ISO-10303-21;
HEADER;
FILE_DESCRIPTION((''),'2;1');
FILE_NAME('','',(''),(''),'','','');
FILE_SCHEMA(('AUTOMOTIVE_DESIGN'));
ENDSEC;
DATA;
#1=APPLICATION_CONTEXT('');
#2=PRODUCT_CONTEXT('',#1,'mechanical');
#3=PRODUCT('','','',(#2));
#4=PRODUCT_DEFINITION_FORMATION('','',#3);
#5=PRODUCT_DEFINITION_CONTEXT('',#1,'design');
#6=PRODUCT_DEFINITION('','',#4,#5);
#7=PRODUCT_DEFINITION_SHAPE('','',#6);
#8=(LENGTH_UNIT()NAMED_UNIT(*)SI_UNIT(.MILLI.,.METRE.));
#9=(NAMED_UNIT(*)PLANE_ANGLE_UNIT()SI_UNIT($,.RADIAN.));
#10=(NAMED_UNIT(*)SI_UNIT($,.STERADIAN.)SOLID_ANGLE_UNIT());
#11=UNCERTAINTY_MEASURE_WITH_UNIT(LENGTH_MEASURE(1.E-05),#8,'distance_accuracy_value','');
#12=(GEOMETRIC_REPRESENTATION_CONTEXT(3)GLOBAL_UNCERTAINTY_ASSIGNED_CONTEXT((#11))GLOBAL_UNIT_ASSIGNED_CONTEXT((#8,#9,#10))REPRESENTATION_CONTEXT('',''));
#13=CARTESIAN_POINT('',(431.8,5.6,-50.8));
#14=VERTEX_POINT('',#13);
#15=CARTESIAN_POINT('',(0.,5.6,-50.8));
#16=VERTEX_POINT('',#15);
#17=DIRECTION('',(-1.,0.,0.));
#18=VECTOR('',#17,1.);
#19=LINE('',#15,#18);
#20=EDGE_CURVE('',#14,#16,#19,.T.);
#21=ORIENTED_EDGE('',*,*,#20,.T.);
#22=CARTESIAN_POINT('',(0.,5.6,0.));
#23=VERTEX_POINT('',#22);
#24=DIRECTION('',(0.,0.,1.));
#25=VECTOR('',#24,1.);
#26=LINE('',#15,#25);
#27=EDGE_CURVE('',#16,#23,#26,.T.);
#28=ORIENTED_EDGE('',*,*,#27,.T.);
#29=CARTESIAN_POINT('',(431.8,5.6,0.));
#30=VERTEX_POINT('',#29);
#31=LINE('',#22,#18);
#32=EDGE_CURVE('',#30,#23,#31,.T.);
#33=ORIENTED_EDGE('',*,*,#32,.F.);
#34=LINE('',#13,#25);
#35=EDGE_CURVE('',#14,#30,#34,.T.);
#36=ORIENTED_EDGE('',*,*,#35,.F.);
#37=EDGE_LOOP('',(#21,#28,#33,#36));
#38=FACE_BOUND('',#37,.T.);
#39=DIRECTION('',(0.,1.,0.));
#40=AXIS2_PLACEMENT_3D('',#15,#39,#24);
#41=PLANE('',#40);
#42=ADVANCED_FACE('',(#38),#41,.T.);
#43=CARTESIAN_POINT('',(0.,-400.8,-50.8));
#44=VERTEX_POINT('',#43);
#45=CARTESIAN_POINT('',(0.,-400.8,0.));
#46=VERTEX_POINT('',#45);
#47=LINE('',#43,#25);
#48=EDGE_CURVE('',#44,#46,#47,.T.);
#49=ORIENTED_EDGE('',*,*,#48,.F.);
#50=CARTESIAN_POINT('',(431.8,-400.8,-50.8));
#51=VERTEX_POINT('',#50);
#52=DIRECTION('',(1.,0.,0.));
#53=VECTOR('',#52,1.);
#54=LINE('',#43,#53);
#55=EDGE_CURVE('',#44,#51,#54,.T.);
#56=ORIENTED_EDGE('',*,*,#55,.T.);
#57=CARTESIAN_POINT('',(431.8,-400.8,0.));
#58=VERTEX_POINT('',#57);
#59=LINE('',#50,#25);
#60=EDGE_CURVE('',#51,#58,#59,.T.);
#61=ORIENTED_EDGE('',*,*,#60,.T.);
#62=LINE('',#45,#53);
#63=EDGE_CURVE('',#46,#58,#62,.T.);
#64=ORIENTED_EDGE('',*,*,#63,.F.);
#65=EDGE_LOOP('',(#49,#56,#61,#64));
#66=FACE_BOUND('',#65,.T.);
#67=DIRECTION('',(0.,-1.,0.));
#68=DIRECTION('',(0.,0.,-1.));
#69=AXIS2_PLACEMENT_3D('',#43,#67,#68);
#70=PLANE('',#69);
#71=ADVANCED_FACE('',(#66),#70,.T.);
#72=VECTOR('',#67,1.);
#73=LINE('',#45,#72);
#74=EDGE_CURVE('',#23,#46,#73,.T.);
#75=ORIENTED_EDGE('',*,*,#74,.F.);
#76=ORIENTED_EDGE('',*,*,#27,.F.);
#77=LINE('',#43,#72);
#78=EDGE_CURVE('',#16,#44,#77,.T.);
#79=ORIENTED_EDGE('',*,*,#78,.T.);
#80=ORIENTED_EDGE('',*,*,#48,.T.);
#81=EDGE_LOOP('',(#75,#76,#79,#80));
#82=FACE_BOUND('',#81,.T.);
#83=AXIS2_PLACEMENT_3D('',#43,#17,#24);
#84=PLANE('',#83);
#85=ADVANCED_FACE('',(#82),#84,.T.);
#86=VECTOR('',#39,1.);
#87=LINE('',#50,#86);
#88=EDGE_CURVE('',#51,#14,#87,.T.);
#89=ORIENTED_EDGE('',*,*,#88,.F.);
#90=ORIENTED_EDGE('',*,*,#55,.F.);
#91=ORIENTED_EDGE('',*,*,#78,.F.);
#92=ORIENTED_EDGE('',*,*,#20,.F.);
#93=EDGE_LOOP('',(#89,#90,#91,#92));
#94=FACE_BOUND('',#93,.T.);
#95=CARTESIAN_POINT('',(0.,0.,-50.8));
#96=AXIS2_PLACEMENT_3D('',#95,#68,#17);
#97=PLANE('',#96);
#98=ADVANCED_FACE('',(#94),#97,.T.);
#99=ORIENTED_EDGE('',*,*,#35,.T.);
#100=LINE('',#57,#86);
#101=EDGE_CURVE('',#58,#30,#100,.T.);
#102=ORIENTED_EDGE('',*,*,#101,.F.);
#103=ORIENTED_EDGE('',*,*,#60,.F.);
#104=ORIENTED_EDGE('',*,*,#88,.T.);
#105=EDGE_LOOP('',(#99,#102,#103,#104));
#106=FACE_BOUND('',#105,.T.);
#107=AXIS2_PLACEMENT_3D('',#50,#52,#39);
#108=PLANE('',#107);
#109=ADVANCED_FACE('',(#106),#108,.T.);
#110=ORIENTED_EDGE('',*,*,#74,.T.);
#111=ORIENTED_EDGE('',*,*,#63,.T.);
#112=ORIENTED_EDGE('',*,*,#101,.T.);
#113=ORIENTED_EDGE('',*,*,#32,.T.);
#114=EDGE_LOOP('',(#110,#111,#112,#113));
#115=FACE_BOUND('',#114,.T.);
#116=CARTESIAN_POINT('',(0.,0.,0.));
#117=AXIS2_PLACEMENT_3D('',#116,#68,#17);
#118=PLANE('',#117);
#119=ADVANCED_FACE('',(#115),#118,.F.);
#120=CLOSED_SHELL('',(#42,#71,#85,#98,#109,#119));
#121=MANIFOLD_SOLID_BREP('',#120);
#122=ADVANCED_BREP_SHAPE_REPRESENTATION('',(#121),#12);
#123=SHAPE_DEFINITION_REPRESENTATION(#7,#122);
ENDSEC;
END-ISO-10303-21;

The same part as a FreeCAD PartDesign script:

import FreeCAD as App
import Part
import Sketcher

V = App.Vector
Q = App.Units.Quantity

doc = App.newDocument("Part")
body = doc.addObject("PartDesign::Body", "Body")

sketch1 = body.newObject("Sketcher::SketchObject", "Sketch")
sketch1.AttachmentSupport = (doc.getObject("XY_Plane"), [""])
sketch1.MapMode = "FlatFace"
sketch1.addGeometry(Part.LineSegment(V(0, 5.6, 0), V(0, -400.8, 0)), False)
sketch1.addGeometry(Part.LineSegment(V(0, -400.8, 0), V(431.8, -400.8, 0)), False)
sketch1.addGeometry(Part.LineSegment(V(431.8, -400.8, 0), V(431.8, 5.6, 0)), False)
sketch1.addGeometry(Part.LineSegment(V(431.8, 5.6, 0), V(0, 5.6, 0)), False)
sketch1.addConstraint(Sketcher.Constraint("Coincident", 0, 2, 1, 1))
sketch1.addConstraint(Sketcher.Constraint("Coincident", 1, 2, 2, 1))
sketch1.addConstraint(Sketcher.Constraint("Coincident", 2, 2, 3, 1))
sketch1.addConstraint(Sketcher.Constraint("Coincident", 3, 2, 0, 1))
sketch1.addConstraint(Sketcher.Constraint("Vertical", 0))
sketch1.addConstraint(Sketcher.Constraint("Horizontal", 1))
sketch1.addConstraint(Sketcher.Constraint("Vertical", 2))
sketch1.addConstraint(Sketcher.Constraint("Horizontal", 3))
sketch1.addConstraint(Sketcher.Constraint("PointOnObject", 0, 2, -2))
sketch1.addConstraint(Sketcher.Constraint("DistanceX", 1, 1, 1, 2, Q("17 in")))
sketch1.addConstraint(Sketcher.Constraint("DistanceY", 0, 2, 0, 1, Q("16 in")))
sketch1.addConstraint(Sketcher.Constraint("DistanceY", 0, 2, -1, 1, Q("400.8 mm")))
pad1 = body.newObject("PartDesign::Pad", "Pad")
pad1.Profile = sketch1
pad1.Length = Q("2 in")
pad1.Reversed = True

doc.recompute()
